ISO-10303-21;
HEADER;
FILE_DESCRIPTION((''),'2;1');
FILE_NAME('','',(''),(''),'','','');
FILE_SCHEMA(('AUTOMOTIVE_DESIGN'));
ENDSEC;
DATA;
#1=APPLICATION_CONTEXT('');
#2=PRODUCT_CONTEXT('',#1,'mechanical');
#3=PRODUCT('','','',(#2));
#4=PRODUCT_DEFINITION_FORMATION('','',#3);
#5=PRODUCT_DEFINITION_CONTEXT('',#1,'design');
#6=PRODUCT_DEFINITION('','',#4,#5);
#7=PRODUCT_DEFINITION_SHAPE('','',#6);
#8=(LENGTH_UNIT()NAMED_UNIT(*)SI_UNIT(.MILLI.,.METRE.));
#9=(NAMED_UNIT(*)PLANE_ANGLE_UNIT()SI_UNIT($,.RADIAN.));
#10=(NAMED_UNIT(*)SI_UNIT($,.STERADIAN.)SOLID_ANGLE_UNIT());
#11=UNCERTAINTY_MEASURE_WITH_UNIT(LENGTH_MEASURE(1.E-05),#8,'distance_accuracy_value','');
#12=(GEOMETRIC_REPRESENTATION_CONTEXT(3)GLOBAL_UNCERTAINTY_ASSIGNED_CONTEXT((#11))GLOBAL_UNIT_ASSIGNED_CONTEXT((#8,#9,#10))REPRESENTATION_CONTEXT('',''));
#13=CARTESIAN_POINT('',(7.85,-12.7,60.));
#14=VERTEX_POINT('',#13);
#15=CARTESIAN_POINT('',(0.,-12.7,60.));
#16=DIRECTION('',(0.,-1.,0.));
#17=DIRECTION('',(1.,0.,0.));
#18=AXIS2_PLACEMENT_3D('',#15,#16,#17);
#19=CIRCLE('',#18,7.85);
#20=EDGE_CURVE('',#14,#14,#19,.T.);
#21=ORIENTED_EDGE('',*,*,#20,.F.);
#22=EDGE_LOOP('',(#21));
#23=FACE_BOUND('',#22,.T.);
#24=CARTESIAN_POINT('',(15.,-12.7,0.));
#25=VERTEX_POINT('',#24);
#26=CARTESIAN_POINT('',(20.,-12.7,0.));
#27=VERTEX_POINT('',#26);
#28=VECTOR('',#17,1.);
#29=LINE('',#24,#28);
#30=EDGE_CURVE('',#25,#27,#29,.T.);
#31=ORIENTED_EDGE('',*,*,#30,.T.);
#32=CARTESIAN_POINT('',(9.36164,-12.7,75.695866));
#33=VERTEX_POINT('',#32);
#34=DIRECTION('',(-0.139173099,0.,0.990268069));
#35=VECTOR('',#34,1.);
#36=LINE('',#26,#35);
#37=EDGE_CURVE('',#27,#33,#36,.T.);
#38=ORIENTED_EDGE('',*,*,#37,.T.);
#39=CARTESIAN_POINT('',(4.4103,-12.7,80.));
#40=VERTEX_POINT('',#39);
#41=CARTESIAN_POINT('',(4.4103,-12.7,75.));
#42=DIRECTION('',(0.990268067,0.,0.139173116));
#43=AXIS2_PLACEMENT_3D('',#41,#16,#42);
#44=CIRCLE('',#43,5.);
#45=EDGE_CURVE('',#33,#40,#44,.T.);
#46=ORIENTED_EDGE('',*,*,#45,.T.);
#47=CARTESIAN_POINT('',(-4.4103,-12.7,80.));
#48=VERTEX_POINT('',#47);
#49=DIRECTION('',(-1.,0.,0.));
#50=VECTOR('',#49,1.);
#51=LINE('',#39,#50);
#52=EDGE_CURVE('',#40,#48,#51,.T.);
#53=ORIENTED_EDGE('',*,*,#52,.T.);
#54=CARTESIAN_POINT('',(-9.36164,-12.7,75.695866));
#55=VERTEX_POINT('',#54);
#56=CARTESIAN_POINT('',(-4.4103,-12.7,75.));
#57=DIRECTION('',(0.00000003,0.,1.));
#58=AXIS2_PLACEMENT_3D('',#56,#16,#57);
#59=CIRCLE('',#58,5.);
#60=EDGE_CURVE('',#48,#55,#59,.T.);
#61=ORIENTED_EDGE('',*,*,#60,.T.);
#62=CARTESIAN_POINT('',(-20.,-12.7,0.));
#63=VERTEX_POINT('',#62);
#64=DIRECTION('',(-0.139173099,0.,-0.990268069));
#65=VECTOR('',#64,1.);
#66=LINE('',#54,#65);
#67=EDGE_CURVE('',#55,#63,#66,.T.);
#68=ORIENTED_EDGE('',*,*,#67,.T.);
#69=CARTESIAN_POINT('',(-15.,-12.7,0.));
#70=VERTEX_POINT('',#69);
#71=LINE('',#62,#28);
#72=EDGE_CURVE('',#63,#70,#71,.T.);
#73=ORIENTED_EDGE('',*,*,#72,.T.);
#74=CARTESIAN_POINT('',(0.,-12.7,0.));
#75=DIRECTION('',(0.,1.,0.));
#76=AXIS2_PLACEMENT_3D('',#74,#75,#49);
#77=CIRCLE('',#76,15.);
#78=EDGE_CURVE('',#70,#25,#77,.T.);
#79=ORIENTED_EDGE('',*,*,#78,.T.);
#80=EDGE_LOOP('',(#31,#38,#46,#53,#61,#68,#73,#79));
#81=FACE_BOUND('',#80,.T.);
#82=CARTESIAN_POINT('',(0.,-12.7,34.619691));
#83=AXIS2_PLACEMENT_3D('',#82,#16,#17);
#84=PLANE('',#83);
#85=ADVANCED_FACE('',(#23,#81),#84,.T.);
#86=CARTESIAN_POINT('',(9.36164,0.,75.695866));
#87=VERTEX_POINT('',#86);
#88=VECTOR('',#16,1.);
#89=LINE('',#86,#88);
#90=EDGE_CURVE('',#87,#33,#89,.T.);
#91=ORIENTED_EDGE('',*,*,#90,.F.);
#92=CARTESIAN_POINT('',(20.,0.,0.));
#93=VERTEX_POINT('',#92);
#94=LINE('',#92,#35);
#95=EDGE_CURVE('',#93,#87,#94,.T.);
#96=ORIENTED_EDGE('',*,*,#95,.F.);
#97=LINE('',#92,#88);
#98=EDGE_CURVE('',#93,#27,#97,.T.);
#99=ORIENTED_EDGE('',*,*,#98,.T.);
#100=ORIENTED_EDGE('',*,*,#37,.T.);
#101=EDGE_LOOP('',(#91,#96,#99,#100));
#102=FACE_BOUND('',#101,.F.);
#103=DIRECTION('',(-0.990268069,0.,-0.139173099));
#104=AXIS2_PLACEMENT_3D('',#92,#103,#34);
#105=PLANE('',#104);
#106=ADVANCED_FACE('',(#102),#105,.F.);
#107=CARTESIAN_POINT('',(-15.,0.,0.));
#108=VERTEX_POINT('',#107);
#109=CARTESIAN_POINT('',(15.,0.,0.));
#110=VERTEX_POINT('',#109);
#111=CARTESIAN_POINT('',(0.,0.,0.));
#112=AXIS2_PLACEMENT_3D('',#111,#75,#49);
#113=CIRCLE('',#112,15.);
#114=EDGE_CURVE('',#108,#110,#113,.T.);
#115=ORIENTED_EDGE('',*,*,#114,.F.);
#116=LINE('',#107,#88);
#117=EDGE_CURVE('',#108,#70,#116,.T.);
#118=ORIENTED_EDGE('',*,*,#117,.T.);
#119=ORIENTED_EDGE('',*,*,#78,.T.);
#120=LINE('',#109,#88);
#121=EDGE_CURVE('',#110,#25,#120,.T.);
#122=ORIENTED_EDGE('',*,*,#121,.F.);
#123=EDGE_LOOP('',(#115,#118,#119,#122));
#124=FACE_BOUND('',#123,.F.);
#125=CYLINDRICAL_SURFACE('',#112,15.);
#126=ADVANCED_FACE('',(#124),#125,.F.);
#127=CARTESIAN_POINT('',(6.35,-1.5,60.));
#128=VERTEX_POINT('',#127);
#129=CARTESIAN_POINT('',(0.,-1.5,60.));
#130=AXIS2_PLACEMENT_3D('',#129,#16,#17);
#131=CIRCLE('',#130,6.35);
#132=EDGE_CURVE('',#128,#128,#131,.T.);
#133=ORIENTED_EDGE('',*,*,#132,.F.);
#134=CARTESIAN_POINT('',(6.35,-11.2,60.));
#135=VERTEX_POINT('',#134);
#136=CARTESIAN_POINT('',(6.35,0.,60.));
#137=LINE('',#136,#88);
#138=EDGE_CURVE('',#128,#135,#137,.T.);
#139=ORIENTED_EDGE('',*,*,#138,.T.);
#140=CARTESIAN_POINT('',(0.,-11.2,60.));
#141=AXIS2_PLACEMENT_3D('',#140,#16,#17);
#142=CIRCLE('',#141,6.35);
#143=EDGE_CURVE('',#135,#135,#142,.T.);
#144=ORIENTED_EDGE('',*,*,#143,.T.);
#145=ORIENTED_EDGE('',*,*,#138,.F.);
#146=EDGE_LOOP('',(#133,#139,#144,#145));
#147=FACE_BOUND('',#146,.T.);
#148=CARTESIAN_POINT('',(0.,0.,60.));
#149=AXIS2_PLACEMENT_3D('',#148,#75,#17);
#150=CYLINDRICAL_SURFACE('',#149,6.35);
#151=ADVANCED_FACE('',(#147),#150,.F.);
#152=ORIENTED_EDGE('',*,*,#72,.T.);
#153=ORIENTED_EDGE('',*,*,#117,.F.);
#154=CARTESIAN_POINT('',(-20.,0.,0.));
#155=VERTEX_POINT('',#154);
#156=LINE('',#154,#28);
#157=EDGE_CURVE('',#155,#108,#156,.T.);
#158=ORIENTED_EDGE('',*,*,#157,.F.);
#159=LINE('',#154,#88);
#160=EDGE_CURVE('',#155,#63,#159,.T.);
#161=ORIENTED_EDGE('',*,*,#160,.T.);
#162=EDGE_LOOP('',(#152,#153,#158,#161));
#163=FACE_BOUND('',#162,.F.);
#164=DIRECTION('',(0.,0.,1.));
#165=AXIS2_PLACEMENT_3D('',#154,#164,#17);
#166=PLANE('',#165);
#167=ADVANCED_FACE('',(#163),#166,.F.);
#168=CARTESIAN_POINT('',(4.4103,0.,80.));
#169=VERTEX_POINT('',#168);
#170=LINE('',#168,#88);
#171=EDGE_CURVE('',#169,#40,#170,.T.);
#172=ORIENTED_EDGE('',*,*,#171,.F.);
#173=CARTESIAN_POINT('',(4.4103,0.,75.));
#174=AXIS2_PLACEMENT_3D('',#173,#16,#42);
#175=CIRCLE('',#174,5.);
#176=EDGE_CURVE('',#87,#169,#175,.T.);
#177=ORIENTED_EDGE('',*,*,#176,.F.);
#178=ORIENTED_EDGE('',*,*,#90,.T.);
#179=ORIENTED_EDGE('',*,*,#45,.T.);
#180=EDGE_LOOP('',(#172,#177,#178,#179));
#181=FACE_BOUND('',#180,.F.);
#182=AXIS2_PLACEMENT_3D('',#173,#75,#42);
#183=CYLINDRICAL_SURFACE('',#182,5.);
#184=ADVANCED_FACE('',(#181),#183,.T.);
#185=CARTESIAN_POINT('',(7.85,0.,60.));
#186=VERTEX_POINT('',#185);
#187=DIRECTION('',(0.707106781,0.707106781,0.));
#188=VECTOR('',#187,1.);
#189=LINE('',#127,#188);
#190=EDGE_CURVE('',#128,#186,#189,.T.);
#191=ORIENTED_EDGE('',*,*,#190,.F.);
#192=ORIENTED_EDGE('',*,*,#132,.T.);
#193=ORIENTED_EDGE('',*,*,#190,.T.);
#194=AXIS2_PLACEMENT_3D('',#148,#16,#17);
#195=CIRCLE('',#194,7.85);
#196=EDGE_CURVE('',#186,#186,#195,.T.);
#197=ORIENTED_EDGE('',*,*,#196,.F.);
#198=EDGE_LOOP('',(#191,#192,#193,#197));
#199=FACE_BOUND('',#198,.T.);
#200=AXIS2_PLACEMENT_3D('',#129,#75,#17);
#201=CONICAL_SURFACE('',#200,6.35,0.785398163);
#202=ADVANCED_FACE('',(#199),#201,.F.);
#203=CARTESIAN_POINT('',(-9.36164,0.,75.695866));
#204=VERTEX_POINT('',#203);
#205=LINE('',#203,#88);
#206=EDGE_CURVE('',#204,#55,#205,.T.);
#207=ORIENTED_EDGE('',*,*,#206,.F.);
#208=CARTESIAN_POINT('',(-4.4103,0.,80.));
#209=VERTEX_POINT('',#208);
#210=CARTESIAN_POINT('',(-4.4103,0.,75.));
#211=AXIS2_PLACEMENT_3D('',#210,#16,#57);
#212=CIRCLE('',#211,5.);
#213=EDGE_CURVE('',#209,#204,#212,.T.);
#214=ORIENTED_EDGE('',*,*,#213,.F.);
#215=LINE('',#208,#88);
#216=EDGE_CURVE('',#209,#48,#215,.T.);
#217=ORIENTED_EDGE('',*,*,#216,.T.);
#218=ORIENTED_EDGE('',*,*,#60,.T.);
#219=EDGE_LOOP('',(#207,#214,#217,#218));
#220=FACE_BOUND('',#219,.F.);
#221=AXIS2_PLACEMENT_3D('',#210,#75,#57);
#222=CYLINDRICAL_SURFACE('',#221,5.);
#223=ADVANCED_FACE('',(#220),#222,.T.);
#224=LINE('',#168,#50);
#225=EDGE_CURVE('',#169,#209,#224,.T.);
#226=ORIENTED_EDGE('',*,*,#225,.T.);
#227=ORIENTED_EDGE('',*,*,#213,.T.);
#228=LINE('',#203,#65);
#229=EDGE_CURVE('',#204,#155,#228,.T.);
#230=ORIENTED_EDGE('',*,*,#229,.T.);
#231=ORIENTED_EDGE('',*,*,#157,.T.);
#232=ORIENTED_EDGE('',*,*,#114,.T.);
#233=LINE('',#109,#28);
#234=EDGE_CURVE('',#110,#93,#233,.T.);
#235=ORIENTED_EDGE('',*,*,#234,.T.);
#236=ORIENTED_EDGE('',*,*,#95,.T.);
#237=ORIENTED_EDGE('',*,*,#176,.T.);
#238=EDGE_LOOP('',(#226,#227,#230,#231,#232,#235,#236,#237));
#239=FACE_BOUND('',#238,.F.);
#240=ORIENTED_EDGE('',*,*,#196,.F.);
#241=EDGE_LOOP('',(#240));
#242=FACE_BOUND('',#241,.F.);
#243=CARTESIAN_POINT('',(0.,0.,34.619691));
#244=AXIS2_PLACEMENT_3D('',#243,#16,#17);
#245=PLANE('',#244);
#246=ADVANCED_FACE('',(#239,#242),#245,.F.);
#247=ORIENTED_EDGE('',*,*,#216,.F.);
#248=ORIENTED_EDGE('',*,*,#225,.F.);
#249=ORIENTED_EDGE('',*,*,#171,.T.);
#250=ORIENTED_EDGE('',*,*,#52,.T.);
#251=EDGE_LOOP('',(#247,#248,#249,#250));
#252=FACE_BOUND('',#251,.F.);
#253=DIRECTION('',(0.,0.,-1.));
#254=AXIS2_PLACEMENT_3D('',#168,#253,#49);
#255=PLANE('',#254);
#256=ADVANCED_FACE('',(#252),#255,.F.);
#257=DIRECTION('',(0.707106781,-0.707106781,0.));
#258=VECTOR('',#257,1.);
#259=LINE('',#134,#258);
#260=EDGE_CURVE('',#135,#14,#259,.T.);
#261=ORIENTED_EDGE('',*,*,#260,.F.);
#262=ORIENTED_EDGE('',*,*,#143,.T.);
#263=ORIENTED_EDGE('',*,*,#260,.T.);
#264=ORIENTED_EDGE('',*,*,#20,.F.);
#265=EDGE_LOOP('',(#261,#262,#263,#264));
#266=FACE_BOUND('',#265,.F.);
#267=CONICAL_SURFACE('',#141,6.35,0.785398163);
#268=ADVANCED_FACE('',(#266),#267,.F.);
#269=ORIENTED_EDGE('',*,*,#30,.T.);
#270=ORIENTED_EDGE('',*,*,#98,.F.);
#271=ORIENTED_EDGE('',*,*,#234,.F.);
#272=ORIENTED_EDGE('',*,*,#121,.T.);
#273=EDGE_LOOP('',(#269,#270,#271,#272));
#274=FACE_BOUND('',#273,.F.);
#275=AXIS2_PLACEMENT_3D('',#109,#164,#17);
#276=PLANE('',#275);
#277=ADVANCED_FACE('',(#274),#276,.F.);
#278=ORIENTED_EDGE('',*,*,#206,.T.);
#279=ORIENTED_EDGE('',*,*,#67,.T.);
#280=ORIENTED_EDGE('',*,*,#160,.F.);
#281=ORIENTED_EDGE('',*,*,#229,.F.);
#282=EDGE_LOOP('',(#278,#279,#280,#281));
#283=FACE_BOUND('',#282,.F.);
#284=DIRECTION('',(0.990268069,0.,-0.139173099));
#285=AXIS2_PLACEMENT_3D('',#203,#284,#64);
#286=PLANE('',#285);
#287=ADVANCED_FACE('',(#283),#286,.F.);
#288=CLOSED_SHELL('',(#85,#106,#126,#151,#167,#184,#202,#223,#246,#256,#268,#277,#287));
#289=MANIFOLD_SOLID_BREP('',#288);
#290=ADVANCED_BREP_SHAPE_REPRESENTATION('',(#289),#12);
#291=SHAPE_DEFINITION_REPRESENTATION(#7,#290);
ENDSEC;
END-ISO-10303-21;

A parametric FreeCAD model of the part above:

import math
import FreeCAD as App
import Part
import Sketcher
Q = App.Units.Quantity


def edges_at(feature, points):
    """Names of the edges that pass closest to the given points."""
    edges = feature.Shape.Edges
    near = lambda p: min(range(len(edges)), key=lambda i: edges[i].distToShape(Part.Vertex(*p))[0])
    return sorted({f"Edge{near(p) + 1}" for p in points})

doc = App.newDocument("Part")
body = doc.addObject("PartDesign::Body", "Body")

# Sketch on XZ plane
sketch1 = body.newObject("Sketcher::SketchObject", "Sketch")
sketch1.AttachmentSupport = (doc.getObject("XZ_Plane"), [""])
sketch1.MapMode = "FlatFace"
sketch1.addGeometry([
    Part.LineSegment(App.Vector(20, 0, 0), App.Vector(9.36164, 75.695866, 0)),  # 0
    Part.ArcOfCircle(Part.Circle(App.Vector(4.4103, 75, 0), App.Vector(0, 0, 1), 5), math.radians(8.000001), math.radians(90.000002)),  # 1
    Part.LineSegment(App.Vector(4.4103, 80, 0), App.Vector(-4.4103, 80, 0)),  # 2
    Part.ArcOfCircle(Part.Circle(App.Vector(-4.4103, 75, 0), App.Vector(0, 0, 1), 5), math.radians(89.999998), math.radians(171.999999)),  # 3
    Part.LineSegment(App.Vector(-9.36164, 75.695866, 0), App.Vector(-20, 0, 0)),  # 4
    Part.LineSegment(App.Vector(-20, 0, 0), App.Vector(-15, 0, 0)),  # 5
    Part.ArcOfCircle(Part.Circle(App.Vector(0, 0, 0), App.Vector(0, 0, 1), 15), math.radians(0), math.radians(180)),  # 6
    Part.LineSegment(App.Vector(15, 0, 0), App.Vector(20, 0, 0)),  # 7
    Part.Circle(App.Vector(0, 60, 0), App.Vector(0, 0, 1), 6.35),  # 8
], False)
sketch1.addConstraint([
    Sketcher.Constraint("Tangent", 0, 2, 1, 1),
    Sketcher.Constraint("Tangent", 1, 2, 2, 1),
    Sketcher.Constraint("Tangent", 2, 2, 3, 1),
    Sketcher.Constraint("Tangent", 3, 2, 4, 1),
    Sketcher.Constraint("Coincident", 4, 2, 5, 1),
    Sketcher.Constraint("Coincident", 5, 2, 6, 2),
    Sketcher.Constraint("Coincident", 6, 1, 7, 1),
    Sketcher.Constraint("Coincident", 7, 2, 0, 1),
    Sketcher.Constraint("Horizontal", 2),
    Sketcher.Constraint("Horizontal", 5),
    Sketcher.Constraint("Horizontal", 7),
    Sketcher.Constraint("Coincident", 6, 3, -1, 1),
    Sketcher.Constraint("Equal", 1, 3),
    Sketcher.Constraint("Symmetric", 4, 2, 7, 2, -1, 1),
    Sketcher.Constraint("PointOnObject", 8, 3, -2),
    Sketcher.Constraint("PointOnObject", 4, 2, -1),
    Sketcher.Constraint("Horizontal", 0, 2, 3, 2),
    Sketcher.Constraint("Radius", 1, 5.0),
    Sketcher.Constraint("Radius", 6, 15.0),
    Sketcher.Constraint("Diameter", 8, 12.7),
    Sketcher.Constraint("DistanceX", 5, 1, 5, 2, 5.0),
    Sketcher.Constraint("Angle", 0, Q("98 deg")),
    Sketcher.Constraint("DistanceY", -1, 1, 1, 3, 75.0),
    Sketcher.Constraint("DistanceY", -1, 1, 8, 3, 60.0),
])
pad1 = body.newObject("PartDesign::Pad", "Pad")
pad1.Profile = sketch1
pad1.Length = 12.7
doc.recompute()

chamfer = body.newObject("PartDesign::Chamfer", "Chamfer")
chamfer.Base = (pad1, edges_at(pad1, [(-6.35, -12.7, 60), (-6.35, 0, 60)]))
chamfer.Size = 1.5

doc.recompute()
